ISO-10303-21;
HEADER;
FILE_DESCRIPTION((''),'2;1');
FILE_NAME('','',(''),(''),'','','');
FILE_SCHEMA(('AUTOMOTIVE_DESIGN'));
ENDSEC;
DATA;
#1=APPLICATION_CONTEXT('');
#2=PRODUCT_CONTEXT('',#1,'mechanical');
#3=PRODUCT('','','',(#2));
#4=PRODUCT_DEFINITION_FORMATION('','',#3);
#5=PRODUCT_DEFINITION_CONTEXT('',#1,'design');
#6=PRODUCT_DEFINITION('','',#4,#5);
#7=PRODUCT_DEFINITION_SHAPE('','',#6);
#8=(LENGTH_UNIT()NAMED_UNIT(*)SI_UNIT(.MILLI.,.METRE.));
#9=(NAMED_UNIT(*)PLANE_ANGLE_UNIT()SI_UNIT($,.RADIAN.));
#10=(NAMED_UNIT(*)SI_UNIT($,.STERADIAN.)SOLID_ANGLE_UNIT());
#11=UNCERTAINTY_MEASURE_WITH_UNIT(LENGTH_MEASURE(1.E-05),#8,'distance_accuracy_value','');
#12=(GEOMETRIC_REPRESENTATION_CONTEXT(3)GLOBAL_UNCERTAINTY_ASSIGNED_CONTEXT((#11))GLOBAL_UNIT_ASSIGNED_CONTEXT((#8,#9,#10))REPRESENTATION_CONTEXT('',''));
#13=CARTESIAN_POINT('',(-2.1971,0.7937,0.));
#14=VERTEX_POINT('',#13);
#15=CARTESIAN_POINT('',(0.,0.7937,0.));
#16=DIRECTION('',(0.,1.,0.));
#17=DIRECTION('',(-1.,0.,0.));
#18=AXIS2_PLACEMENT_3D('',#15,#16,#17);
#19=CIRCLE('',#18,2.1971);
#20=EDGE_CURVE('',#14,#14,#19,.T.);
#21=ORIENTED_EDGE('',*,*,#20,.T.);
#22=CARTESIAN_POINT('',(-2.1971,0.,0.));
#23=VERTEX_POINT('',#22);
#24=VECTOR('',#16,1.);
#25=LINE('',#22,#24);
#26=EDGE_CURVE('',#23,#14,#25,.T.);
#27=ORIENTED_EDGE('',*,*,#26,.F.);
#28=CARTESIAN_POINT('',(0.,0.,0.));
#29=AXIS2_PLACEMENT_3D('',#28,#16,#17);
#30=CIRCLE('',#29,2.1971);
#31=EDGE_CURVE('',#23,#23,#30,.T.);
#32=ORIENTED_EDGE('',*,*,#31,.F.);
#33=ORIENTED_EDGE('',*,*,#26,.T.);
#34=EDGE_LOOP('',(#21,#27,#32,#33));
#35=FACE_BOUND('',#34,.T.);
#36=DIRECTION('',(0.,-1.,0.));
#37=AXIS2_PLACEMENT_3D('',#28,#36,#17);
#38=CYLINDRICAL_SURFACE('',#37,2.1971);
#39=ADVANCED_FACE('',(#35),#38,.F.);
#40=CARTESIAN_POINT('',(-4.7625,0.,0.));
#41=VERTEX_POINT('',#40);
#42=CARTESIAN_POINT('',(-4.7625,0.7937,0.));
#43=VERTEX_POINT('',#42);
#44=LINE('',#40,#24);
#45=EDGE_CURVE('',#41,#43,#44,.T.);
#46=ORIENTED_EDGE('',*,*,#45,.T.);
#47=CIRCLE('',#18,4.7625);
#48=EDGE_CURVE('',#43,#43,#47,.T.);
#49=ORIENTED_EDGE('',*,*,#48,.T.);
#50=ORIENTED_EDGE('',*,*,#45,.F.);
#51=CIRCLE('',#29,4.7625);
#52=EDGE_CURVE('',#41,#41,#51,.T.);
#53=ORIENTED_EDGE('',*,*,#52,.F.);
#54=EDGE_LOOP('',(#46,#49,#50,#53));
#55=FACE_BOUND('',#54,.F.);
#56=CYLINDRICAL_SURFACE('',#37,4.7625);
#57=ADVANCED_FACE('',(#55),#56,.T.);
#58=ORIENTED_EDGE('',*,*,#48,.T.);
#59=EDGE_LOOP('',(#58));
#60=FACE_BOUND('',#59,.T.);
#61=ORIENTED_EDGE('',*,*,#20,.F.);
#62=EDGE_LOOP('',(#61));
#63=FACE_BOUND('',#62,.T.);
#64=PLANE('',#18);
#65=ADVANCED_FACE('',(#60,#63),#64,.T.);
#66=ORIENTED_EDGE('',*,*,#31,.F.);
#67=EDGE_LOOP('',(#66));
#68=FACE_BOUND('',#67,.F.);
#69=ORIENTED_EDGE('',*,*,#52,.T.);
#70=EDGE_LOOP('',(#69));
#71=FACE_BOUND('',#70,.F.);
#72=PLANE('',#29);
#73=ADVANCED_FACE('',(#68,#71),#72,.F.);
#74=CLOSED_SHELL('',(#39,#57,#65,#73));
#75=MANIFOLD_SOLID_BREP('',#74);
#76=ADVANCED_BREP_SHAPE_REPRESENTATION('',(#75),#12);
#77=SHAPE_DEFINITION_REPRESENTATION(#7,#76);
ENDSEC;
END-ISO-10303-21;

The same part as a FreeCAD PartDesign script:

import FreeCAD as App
import Part
import Sketcher
from FreeCAD import Vector
Q = App.Units.Quantity

doc = App.newDocument("Part")
body = doc.addObject("PartDesign::Body", "Body")

sketch1 = body.newObject("Sketcher::SketchObject", "Sketch")
sketch1.AttachmentSupport = (doc.getObject("XZ_Plane"), [""])
sketch1.MapMode = "FlatFace"
sketch1.addGeometry([
    Part.Circle(Vector(0, 0, 0), Vector(0, 0, 1), 4.7625),
    Part.Circle(Vector(0, 0, 0), Vector(0, 0, 1), 2.1971),
], False)
sketch1.addConstraint([
    Sketcher.Constraint("Coincident", 0, 3, -1, 1),
    Sketcher.Constraint("Coincident", 1, 3, -1, 1),
    Sketcher.Constraint("Diameter", 0, Q("0.375 in")),
    Sketcher.Constraint("Diameter", 1, Q("0.173 in")),
])
pad1 = body.newObject("PartDesign::Pad", "Pad")
pad1.Profile = sketch1
pad1.Length = Q("0.031248 in")
pad1.Reversed = True

doc.recompute()
